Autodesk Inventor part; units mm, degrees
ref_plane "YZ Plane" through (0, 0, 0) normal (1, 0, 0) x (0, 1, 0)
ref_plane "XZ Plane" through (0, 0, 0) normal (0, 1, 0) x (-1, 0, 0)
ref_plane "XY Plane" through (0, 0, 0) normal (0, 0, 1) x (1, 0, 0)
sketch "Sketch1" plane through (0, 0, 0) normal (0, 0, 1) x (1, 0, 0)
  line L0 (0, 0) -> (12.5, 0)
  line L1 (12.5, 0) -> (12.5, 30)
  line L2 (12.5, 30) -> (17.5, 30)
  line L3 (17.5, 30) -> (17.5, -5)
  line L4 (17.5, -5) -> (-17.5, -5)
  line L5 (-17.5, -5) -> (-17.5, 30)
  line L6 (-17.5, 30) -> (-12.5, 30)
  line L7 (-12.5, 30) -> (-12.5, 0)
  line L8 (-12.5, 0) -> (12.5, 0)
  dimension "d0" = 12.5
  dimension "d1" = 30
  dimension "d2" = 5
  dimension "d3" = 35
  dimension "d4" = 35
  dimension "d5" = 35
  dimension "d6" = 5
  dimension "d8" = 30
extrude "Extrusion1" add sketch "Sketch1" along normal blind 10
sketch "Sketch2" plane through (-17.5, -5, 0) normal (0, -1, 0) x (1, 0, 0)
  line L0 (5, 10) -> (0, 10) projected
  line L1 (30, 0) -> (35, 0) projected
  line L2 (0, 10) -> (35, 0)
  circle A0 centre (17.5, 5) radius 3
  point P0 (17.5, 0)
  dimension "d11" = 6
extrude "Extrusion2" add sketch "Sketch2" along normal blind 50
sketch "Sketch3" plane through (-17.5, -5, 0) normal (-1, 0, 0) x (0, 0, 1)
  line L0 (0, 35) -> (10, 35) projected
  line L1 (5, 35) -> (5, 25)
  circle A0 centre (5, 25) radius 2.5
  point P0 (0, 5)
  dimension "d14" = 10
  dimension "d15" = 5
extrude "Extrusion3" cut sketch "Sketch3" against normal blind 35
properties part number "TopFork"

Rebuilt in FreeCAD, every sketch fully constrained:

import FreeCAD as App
import Part
import Sketcher

doc = App.newDocument("Part")
body = doc.addObject("PartDesign::Body", "Body")

sketch1 = body.newObject("Sketcher::SketchObject", "Sketch")
sketch1.AttachmentSupport = (doc.getObject("XY_Plane"), [""])
sketch1.MapMode = "FlatFace"
sketch1.addGeometry([
    Part.LineSegment(App.Vector(12.5, 0, 0), App.Vector(-12.5, 0, 0)),
    Part.LineSegment(App.Vector(-12.5, 0, 0), App.Vector(-12.5, 30, 0)),
    Part.LineSegment(App.Vector(-12.5, 30, 0), App.Vector(-17.5, 30, 0)),
    Part.LineSegment(App.Vector(-17.5, 30, 0), App.Vector(-17.5, -5, 0)),
    Part.LineSegment(App.Vector(-17.5, -5, 0), App.Vector(17.5, -5, 0)),
    Part.LineSegment(App.Vector(17.5, -5, 0), App.Vector(17.5, 30, 0)),
    Part.LineSegment(App.Vector(17.5, 30, 0), App.Vector(12.5, 30, 0)),
    Part.LineSegment(App.Vector(12.5, 30, 0), App.Vector(12.5, 0, 0)),
], False)
sketch1.addConstraint([
    Sketcher.Constraint("Coincident", 0, 2, 1, 1),
    Sketcher.Constraint("Coincident", 1, 2, 2, 1),
    Sketcher.Constraint("Coincident", 2, 2, 3, 1),
    Sketcher.Constraint("Coincident", 3, 2, 4, 1),
    Sketcher.Constraint("Coincident", 4, 2, 5, 1),
    Sketcher.Constraint("Coincident", 5, 2, 6, 1),
    Sketcher.Constraint("Coincident", 6, 2, 7, 1),
    Sketcher.Constraint("Coincident", 7, 2, 0, 1),
    Sketcher.Constraint("Horizontal", 0),
    Sketcher.Constraint("Vertical", 1),
    Sketcher.Constraint("Horizontal", 2),
    Sketcher.Constraint("Vertical", 3),
    Sketcher.Constraint("Horizontal", 4),
    Sketcher.Constraint("Vertical", 5),
    Sketcher.Constraint("Horizontal", 6),
    Sketcher.Constraint("Vertical", 7),
    Sketcher.Constraint("Symmetric", 0, 2, 7, 2, -1, 1),
    Sketcher.Constraint("Symmetric", 2, 2, 5, 2, -2),
    Sketcher.Constraint("Equal", 4, 3),
    Sketcher.Constraint("DistanceX", 2, 2, 2, 1, 5.0),
    Sketcher.Constraint("DistanceX", 4, 1, 4, 2, 35.0),
    Sketcher.Constraint("DistanceY", 1, 1, 1, 2, 30.0),
])
pad1 = body.newObject("PartDesign::Pad", "Pad")
pad1.Profile = sketch1
pad1.Length = 10

sketch2 = body.newObject("Sketcher::SketchObject", "Sketch001")
sketch2.AttachmentSupport = (doc.getObject("XZ_Plane"), [""])
sketch2.MapMode = "FlatFace"
sketch2.AttachmentOffset = App.Placement(App.Vector(0, 0, 5), App.Rotation())
sketch2.addGeometry(Part.Circle(App.Vector(0, 5, 0), App.Vector(0, 0, 1), 3), False)
sketch2.addConstraint([
    Sketcher.Constraint("PointOnObject", 0, 3, -2),
    Sketcher.Constraint("Diameter", 0, 6.0),
    Sketcher.Constraint("DistanceY", -1, 1, 0, 3, 5.0),
])
pad2 = body.newObject("PartDesign::Pad", "Pad001")
pad2.Profile = sketch2
pad2.Length = 50

sketch3 = body.newObject("Sketcher::SketchObject", "Sketch002")
sketch3.AttachmentSupport = (doc.getObject("YZ_Plane"), [""])
sketch3.MapMode = "FlatFace"
sketch3.AttachmentOffset = App.Placement(App.Vector(0, 0, -17.5), App.Rotation())
sketch3.addGeometry(Part.Circle(App.Vector(20, 5, 0), App.Vector(0, 0, 1), 2.5), False)
sketch3.addConstraint([
    Sketcher.Constraint("Diameter", 0, 5.0),
    Sketcher.Constraint("DistanceY", -1, 1, 0, 3, 5.0),
    Sketcher.Constraint("DistanceX", -1, 1, 0, 3, 20.0),
])
pocket1 = body.newObject("PartDesign::Pocket", "Pocket")
pocket1.Profile = sketch3
pocket1.Length = 35
pocket1.Reversed = True

doc.recompute()
